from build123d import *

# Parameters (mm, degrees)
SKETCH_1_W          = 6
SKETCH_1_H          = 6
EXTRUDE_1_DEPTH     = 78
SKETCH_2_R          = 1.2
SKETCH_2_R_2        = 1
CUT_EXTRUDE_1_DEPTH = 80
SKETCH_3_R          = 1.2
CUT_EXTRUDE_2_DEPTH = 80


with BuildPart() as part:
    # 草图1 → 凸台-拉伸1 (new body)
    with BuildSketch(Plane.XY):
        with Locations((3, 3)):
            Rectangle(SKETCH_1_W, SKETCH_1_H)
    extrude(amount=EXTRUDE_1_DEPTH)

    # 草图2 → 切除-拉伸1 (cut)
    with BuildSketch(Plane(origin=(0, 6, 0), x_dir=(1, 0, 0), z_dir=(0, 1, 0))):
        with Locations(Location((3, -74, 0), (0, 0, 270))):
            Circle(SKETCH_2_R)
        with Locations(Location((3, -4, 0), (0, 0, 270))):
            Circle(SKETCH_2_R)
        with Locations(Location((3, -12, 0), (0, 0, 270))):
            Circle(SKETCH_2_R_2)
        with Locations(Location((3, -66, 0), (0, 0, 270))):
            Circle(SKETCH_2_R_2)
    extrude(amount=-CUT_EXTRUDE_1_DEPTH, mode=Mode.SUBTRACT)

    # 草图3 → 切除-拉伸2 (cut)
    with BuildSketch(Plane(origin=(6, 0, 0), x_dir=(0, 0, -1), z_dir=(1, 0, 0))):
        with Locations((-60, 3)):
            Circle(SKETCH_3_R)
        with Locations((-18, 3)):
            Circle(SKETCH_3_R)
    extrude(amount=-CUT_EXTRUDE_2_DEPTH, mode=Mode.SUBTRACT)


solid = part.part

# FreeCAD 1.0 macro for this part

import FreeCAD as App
import Part
import Sketcher
from FreeCAD import Vector

doc = App.newDocument("Part")
params = doc.addObject("Spreadsheet::Sheet", "Params")
for row, (alias, value) in enumerate([
    ("sketch1_width", "6 mm"),
    ("pad1_length", "78 mm"),
    ("sketch2_diameter", "2 mm"),
    ("sketch2_diameter2", "2.4 mm"),
    ("pocket1_length", "80 mm"),
    ("sketch3_diameter", "2.4 mm"),
    ("pocket2_length", "80 mm"),
], start=1):
    params.set(f"A{row}", alias)
    params.set(f"B{row}", "=" + value)
    params.setAlias(f"B{row}", alias)

body = doc.addObject("PartDesign::Body", "Body")

# Sketch on XY plane
sketch1 = body.newObject("Sketcher::SketchObject", "Sketch")
sketch1.AttachmentSupport = (doc.getObject("XY_Plane"), [""])
sketch1.MapMode = "FlatFace"
sketch1.addGeometry([
    Part.LineSegment(Vector(0, 6, 0), Vector(0, 0, 0)),
    Part.LineSegment(Vector(0, 0, 0), Vector(6, 0, 0)),
    Part.LineSegment(Vector(6, 0, 0), Vector(6, 6, 0)),
    Part.LineSegment(Vector(6, 6, 0), Vector(0, 6, 0)),
], False)
sketch1.addConstraint([
    Sketcher.Constraint("Coincident", 0, 2, 1, 1),
    Sketcher.Constraint("Coincident", 1, 2, 2, 1),
    Sketcher.Constraint("Coincident", 2, 2, 3, 1),
    Sketcher.Constraint("Coincident", 3, 2, 0, 1),
    Sketcher.Constraint("Vertical", 0),
    Sketcher.Constraint("Horizontal", 1),
    Sketcher.Constraint("Vertical", 2),
    Sketcher.Constraint("Horizontal", 3),
    Sketcher.Constraint("Coincident", 0, 2, -1, 1),
    Sketcher.Constraint("Equal", 3, 0),
    Sketcher.Constraint("DistanceX", 1, 1, 1, 2, 6.0),
])
sketch1.setExpression("Constraints[10]", "Params.sketch1_width")
pad1 = body.newObject("PartDesign::Pad", "Pad")
pad1.Profile = sketch1
pad1.setExpression("Length", "Params.pad1_length")

# Sketch on XZ plane
sketch2 = body.newObject("Sketcher::SketchObject", "Sketch001")
sketch2.AttachmentSupport = (doc.getObject("XZ_Plane"), [""])
sketch2.MapMode = "FlatFace"
sketch2.AttachmentOffset = App.Placement(Vector(0, 0, -6), App.Rotation())
sketch2.addGeometry([
    Part.Circle(Vector(3, 74, 0), Vector(0, 0, 1), 1.2),
    Part.Circle(Vector(3, 4, 0), Vector(0, 0, 1), 1.2),
    Part.Circle(Vector(3, 12, 0), Vector(0, 0, 1), 1),
    Part.Circle(Vector(3, 66, 0), Vector(0, 0, 1), 1),
], False)
sketch2.addConstraint([
    Sketcher.Constraint("Equal", 0, 1),
    Sketcher.Constraint("Equal", 2, 3),
    Sketcher.Constraint("Vertical", 0, 3, 1, 3),
    Sketcher.Constraint("Vertical", 1, 3, 2, 3),
    Sketcher.Constraint("Vertical", 2, 3, 3, 3),
    Sketcher.Constraint("Diameter", 2, 2.0),
    Sketcher.Constraint("Diameter", 0, 2.4),
    Sketcher.Constraint("DistanceX", -1, 1, 0, 3, 3.0),
    Sketcher.Constraint("DistanceY", -1, 1, 0, 3, 74.0),
    Sketcher.Constraint("DistanceY", -1, 1, 1, 3, 4.0),
    Sketcher.Constraint("DistanceY", -1, 1, 2, 3, 12.0),
    Sketcher.Constraint("DistanceY", -1, 1, 3, 3, 66.0),
])
sketch2.setExpression("Constraints[5]", "Params.sketch2_diameter")
sketch2.setExpression("Constraints[6]", "Params.sketch2_diameter2")
pocket1 = body.newObject("PartDesign::Pocket", "Pocket")
pocket1.Profile = sketch2
pocket1.setExpression("Length", "Params.pocket1_length")
pocket1.Reversed = True

# Sketch on YZ plane
sketch3 = body.newObject("Sketcher::SketchObject", "Sketch002")
sketch3.AttachmentSupport = (doc.getObject("YZ_Plane"), [""])
sketch3.MapMode = "FlatFace"
sketch3.AttachmentOffset = App.Placement(Vector(0, 0, 6), App.Rotation())
sketch3.addGeometry([
    Part.Circle(Vector(3, 60, 0), Vector(0, 0, 1), 1.2),
    Part.Circle(Vector(3, 18, 0), Vector(0, 0, 1), 1.2),
], False)
sketch3.addConstraint([
    Sketcher.Constraint("Equal", 0, 1),
    Sketcher.Constraint("Vertical", 0, 3, 1, 3),
    Sketcher.Constraint("Diameter", 0, 2.4),
    Sketcher.Constraint("DistanceX", -1, 1, 0, 3, 3.0),
    Sketcher.Constraint("DistanceY", -1, 1, 0, 3, 60.0),
    Sketcher.Constraint("DistanceY", -1, 1, 1, 3, 18.0),
])
sketch3.setExpression("Constraints[2]", "Params.sketch3_diameter")
pocket2 = body.newObject("PartDesign::Pocket", "Pocket001")
pocket2.Profile = sketch3
pocket2.setExpression("Length", "Params.pocket2_length")

doc.recompute()
